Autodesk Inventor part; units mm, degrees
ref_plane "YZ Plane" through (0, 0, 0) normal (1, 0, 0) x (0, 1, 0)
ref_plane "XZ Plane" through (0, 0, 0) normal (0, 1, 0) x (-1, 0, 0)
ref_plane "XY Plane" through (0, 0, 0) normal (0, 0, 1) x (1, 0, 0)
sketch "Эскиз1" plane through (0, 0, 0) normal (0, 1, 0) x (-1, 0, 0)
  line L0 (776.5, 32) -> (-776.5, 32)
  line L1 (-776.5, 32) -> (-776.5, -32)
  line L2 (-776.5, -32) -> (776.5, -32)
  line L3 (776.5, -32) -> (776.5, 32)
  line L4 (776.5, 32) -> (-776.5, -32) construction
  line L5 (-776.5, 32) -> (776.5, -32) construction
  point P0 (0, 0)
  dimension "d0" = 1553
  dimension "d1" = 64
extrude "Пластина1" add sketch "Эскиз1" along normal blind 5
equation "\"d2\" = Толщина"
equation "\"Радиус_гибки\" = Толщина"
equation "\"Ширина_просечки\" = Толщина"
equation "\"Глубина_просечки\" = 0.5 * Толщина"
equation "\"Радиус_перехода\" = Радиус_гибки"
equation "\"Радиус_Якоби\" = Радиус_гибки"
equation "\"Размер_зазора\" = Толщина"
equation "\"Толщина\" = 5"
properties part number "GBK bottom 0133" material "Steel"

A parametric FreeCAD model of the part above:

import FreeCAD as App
import Part
import Sketcher

doc = App.newDocument("Part")
body = doc.addObject("PartDesign::Body", "Body")

# Sketch on XZ plane
sketch1 = doc.addObject("Sketcher::SketchObject", "Sketch")
body.addObject(sketch1)
sketch1.AttachmentSupport = (doc.XZ_Plane, [""])
sketch1.MapMode = "FlatFace"
sketch1.addGeometry(Part.LineSegment(App.Vector(-776, -32, 0), App.Vector(-776, 32, 0)), False)
sketch1.addGeometry(Part.LineSegment(App.Vector(-776, 32, 0), App.Vector(776, 32, 0)), False)
sketch1.addGeometry(Part.LineSegment(App.Vector(776, 32, 0), App.Vector(776, -32, 0)), False)
sketch1.addGeometry(Part.LineSegment(App.Vector(776, -32, 0), App.Vector(-776, -32, 0)), False)
sketch1.addConstraint(Sketcher.Constraint("Coincident", 0, 2, 1, 1))
sketch1.addConstraint(Sketcher.Constraint("Coincident", 1, 2, 2, 1))
sketch1.addConstraint(Sketcher.Constraint("Coincident", 2, 2, 3, 1))
sketch1.addConstraint(Sketcher.Constraint("Coincident", 3, 2, 0, 1))
sketch1.addConstraint(Sketcher.Constraint("Vertical", 0))
sketch1.addConstraint(Sketcher.Constraint("Horizontal", 1))
sketch1.addConstraint(Sketcher.Constraint("Vertical", 2))
sketch1.addConstraint(Sketcher.Constraint("Horizontal", 3))
sketch1.addConstraint(Sketcher.Constraint("Symmetric", 0, 2, 2, 2, -1, 1))
sketch1.addConstraint(Sketcher.Constraint("DistanceX", 1, 1, 1, 2, 1553.0))
sketch1.addConstraint(Sketcher.Constraint("DistanceY", 0, 1, 0, 2, 64.0))
pad1 = doc.addObject("PartDesign::Pad", "Pad")
body.addObject(pad1)
pad1.Profile = sketch1
pad1.Length = 5
pad1.Reversed = True

doc.recompute()
